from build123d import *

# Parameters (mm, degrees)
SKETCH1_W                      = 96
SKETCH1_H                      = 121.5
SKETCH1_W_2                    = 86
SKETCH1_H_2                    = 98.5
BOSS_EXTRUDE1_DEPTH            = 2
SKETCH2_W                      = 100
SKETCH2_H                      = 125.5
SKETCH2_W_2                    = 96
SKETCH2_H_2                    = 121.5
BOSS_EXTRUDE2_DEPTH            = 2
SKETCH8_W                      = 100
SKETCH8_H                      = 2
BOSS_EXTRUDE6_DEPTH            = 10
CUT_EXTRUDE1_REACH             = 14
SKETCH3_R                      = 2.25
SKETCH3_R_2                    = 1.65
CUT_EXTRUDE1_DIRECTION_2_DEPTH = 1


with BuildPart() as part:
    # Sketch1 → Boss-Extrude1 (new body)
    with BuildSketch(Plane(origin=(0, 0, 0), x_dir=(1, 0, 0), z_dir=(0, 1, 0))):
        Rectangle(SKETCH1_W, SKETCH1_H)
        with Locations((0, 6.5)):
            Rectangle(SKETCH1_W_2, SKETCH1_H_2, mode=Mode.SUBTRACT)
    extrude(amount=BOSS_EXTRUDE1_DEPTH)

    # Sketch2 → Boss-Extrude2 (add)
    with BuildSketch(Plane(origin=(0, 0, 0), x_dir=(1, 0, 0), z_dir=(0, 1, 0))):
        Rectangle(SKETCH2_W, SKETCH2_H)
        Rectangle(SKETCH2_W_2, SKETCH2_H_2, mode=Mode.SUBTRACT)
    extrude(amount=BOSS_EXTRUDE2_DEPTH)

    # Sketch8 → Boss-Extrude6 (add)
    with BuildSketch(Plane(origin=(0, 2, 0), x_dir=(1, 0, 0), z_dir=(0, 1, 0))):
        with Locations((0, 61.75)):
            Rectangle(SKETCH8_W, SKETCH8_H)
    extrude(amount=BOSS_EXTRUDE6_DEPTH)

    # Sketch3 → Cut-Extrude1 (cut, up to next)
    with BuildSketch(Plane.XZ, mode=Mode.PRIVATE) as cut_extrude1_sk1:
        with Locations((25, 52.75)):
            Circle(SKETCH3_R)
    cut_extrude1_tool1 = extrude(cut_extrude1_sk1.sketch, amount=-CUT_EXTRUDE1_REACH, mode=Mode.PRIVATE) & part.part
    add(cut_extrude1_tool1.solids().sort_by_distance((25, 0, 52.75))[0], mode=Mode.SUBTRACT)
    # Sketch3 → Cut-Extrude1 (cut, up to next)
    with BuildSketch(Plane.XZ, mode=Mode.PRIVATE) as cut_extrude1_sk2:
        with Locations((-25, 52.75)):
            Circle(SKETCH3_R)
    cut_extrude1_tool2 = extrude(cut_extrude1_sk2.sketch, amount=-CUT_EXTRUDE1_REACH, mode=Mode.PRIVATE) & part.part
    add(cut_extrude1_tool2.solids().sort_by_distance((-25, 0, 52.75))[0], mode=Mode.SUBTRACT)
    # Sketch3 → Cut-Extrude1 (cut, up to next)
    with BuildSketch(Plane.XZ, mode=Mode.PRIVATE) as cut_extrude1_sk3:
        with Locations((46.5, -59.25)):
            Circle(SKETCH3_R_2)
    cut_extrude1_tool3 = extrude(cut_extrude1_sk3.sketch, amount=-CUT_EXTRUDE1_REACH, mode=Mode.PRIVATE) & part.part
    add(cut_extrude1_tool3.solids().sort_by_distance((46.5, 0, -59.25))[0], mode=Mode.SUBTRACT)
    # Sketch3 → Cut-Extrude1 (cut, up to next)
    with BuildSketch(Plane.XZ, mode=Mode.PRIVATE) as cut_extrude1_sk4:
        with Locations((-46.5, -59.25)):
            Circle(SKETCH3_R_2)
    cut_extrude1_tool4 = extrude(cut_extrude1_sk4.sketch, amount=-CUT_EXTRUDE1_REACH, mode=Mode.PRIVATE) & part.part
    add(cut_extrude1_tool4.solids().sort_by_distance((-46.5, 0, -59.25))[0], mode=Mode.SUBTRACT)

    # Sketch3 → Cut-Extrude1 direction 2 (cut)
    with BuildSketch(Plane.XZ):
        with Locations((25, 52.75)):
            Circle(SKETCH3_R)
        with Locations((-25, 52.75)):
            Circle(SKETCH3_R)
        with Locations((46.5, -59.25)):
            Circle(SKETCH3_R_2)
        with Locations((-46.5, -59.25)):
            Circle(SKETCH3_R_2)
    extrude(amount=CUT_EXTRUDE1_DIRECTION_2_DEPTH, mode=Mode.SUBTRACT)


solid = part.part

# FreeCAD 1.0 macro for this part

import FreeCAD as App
import Part
import Sketcher

V = App.Vector

doc = App.newDocument("Part")
body = doc.addObject("PartDesign::Body", "Body")

sketch1 = body.newObject("Sketcher::SketchObject", "Sketch")
sketch1.AttachmentSupport = (doc.getObject("XZ_Plane"), [""])
sketch1.MapMode = "FlatFace"
sketch1.addGeometry(Part.LineSegment(V(-48, -61, 0), V(-48, 61, 0)), False)
sketch1.addGeometry(Part.LineSegment(V(-48, 61, 0), V(48, 61, 0)), False)
sketch1.addGeometry(Part.LineSegment(V(48, 61, 0), V(48, -61, 0)), False)
sketch1.addGeometry(Part.LineSegment(V(48, -61, 0), V(-48, -61, 0)), False)
sketch1.addGeometry(Part.LineSegment(V(43, 43, 0), V(-43, 43, 0)), False)
sketch1.addGeometry(Part.LineSegment(V(-43, 43, 0), V(-43, -56, 0)), False)
sketch1.addGeometry(Part.LineSegment(V(-43, -56, 0), V(43, -56, 0)), False)
sketch1.addGeometry(Part.LineSegment(V(43, -56, 0), V(43, 43, 0)), False)
sketch1.addConstraint(Sketcher.Constraint("Coincident", 0, 2, 1, 1))
sketch1.addConstraint(Sketcher.Constraint("Coincident", 1, 2, 2, 1))
sketch1.addConstraint(Sketcher.Constraint("Coincident", 2, 2, 3, 1))
sketch1.addConstraint(Sketcher.Constraint("Coincident", 3, 2, 0, 1))
sketch1.addConstraint(Sketcher.Constraint("Coincident", 4, 2, 5, 1))
sketch1.addConstraint(Sketcher.Constraint("Coincident", 5, 2, 6, 1))
sketch1.addConstraint(Sketcher.Constraint("Coincident", 6, 2, 7, 1))
sketch1.addConstraint(Sketcher.Constraint("Coincident", 7, 2, 4, 1))
sketch1.addConstraint(Sketcher.Constraint("Vertical", 0))
sketch1.addConstraint(Sketcher.Constraint("Horizontal", 1))
sketch1.addConstraint(Sketcher.Constraint("Vertical", 2))
sketch1.addConstraint(Sketcher.Constraint("Horizontal", 3))
sketch1.addConstraint(Sketcher.Constraint("Horizontal", 4))
sketch1.addConstraint(Sketcher.Constraint("Vertical", 5))
sketch1.addConstraint(Sketcher.Constraint("Horizontal", 6))
sketch1.addConstraint(Sketcher.Constraint("Vertical", 7))
sketch1.addConstraint(Sketcher.Constraint("Symmetric", 0, 2, 2, 2, -1, 1))
sketch1.addConstraint(Sketcher.Constraint("DistanceX", 1, 1, 1, 2, 96.0))
sketch1.addConstraint(Sketcher.Constraint("DistanceX", 4, 2, 4, 1, 86.0))
sketch1.addConstraint(Sketcher.Constraint("DistanceY", 0, 1, 0, 2, 121.5))
sketch1.addConstraint(Sketcher.Constraint("DistanceY", 5, 2, 5, 1, 98.5))
sketch1.addConstraint(Sketcher.Constraint("DistanceX", 4, 2, -1, 1, 43.0))
sketch1.addConstraint(Sketcher.Constraint("DistanceY", 4, 2, 0, 2, 18.0))
pad1 = body.newObject("PartDesign::Pad", "Pad")
pad1.Profile = sketch1
pad1.Length = 2
pad1.Reversed = True

sketch2 = body.newObject("Sketcher::SketchObject", "Sketch001")
sketch2.AttachmentSupport = (doc.getObject("XZ_Plane"), [""])
sketch2.MapMode = "FlatFace"
sketch2.addGeometry(Part.LineSegment(V(-50, -63, 0), V(-50, 63, 0)), False)
sketch2.addGeometry(Part.LineSegment(V(-50, 63, 0), V(50, 63, 0)), False)
sketch2.addGeometry(Part.LineSegment(V(50, 63, 0), V(50, -63, 0)), False)
sketch2.addGeometry(Part.LineSegment(V(50, -63, 0), V(-50, -63, 0)), False)
sketch2.addGeometry(Part.LineSegment(V(48, 61, 0), V(-48, 61, 0)), False)
sketch2.addGeometry(Part.LineSegment(V(-48, 61, 0), V(-48, -61, 0)), False)
sketch2.addGeometry(Part.LineSegment(V(-48, -61, 0), V(48, -61, 0)), False)
sketch2.addGeometry(Part.LineSegment(V(48, -61, 0), V(48, 61, 0)), False)
sketch2.addConstraint(Sketcher.Constraint("Coincident", 0, 2, 1, 1))
sketch2.addConstraint(Sketcher.Constraint("Coincident", 1, 2, 2, 1))
sketch2.addConstraint(Sketcher.Constraint("Coincident", 2, 2, 3, 1))
sketch2.addConstraint(Sketcher.Constraint("Coincident", 3, 2, 0, 1))
sketch2.addConstraint(Sketcher.Constraint("Coincident", 4, 2, 5, 1))
sketch2.addConstraint(Sketcher.Constraint("Coincident", 5, 2, 6, 1))
sketch2.addConstraint(Sketcher.Constraint("Coincident", 6, 2, 7, 1))
sketch2.addConstraint(Sketcher.Constraint("Coincident", 7, 2, 4, 1))
sketch2.addConstraint(Sketcher.Constraint("Vertical", 0))
sketch2.addConstraint(Sketcher.Constraint("Horizontal", 1))
sketch2.addConstraint(Sketcher.Constraint("Vertical", 2))
sketch2.addConstraint(Sketcher.Constraint("Horizontal", 3))
sketch2.addConstraint(Sketcher.Constraint("Horizontal", 4))
sketch2.addConstraint(Sketcher.Constraint("Vertical", 5))
sketch2.addConstraint(Sketcher.Constraint("Horizontal", 6))
sketch2.addConstraint(Sketcher.Constraint("Vertical", 7))
sketch2.addConstraint(Sketcher.Constraint("Symmetric", 0, 2, 2, 2, -1, 1))
sketch2.addConstraint(Sketcher.Constraint("Symmetric", 4, 2, 6, 2, -1, 1))
sketch2.addConstraint(Sketcher.Constraint("DistanceX", 1, 1, 1, 2, 100.0))
sketch2.addConstraint(Sketcher.Constraint("DistanceX", 4, 2, 4, 1, 96.0))
sketch2.addConstraint(Sketcher.Constraint("DistanceY", 0, 1, 0, 2, 125.5))
sketch2.addConstraint(Sketcher.Constraint("DistanceY", 5, 2, 5, 1, 121.5))
pad2 = body.newObject("PartDesign::Pad", "Pad001")
pad2.Profile = sketch2
pad2.Length = 2
pad2.Reversed = True

sketch3 = body.newObject("Sketcher::SketchObject", "Sketch002")
sketch3.AttachmentSupport = (doc.getObject("XZ_Plane"), [""])
sketch3.MapMode = "FlatFace"
sketch3.AttachmentOffset = App.Placement(V(0, 0, -2), App.Rotation())
sketch3.addGeometry(Part.LineSegment(V(-50, -62.8, 0), V(-50, -60.8, 0)), False)
sketch3.addGeometry(Part.LineSegment(V(-50, -60.8, 0), V(50, -60.8, 0)), False)
sketch3.addGeometry(Part.LineSegment(V(50, -60.8, 0), V(50, -62.8, 0)), False)
sketch3.addGeometry(Part.LineSegment(V(50, -62.8, 0), V(-50, -62.8, 0)), False)
sketch3.addConstraint(Sketcher.Constraint("Coincident", 0, 2, 1, 1))
sketch3.addConstraint(Sketcher.Constraint("Coincident", 1, 2, 2, 1))
sketch3.addConstraint(Sketcher.Constraint("Coincident", 2, 2, 3, 1))
sketch3.addConstraint(Sketcher.Constraint("Coincident", 3, 2, 0, 1))
sketch3.addConstraint(Sketcher.Constraint("Vertical", 0))
sketch3.addConstraint(Sketcher.Constraint("Horizontal", 1))
sketch3.addConstraint(Sketcher.Constraint("Vertical", 2))
sketch3.addConstraint(Sketcher.Constraint("Horizontal", 3))
sketch3.addConstraint(Sketcher.Constraint("DistanceX", 1, 1, 1, 2, 100.0))
sketch3.addConstraint(Sketcher.Constraint("DistanceY", 0, 1, 0, 2, 2.0))
sketch3.addConstraint(Sketcher.Constraint("DistanceX", 0, 2, -1, 1, 50.0))
sketch3.addConstraint(Sketcher.Constraint("DistanceY", 0, 2, -1, 1, 60.75))
pad3 = body.newObject("PartDesign::Pad", "Pad002")
pad3.Profile = sketch3
pad3.Length = 10
pad3.Reversed = True

sketch4 = body.newObject("Sketcher::SketchObject", "Sketch003")
sketch4.AttachmentSupport = (doc.getObject("XZ_Plane"), [""])
sketch4.MapMode = "FlatFace"
sketch4.addGeometry(Part.Circle(V(25, 52.8, 0), V(0, 0, 1), 2.2), False)
sketch4.addConstraint(Sketcher.Constraint("Diameter", 0, 4.5))
sketch4.addConstraint(Sketcher.Constraint("DistanceX", -1, 1, 0, 3, 25.0))
sketch4.addConstraint(Sketcher.Constraint("DistanceY", -1, 1, 0, 3, 52.75))
pocket1 = body.newObject("PartDesign::Pocket", "Pocket")
pocket1.Profile = sketch4
pocket1.Type = "UpToFirst"

sketch5 = body.newObject("Sketcher::SketchObject", "Sketch004")
sketch5.AttachmentSupport = (doc.getObject("XZ_Plane"), [""])
sketch5.MapMode = "FlatFace"
sketch5.addGeometry(Part.Circle(V(-25, 52.8, 0), V(0, 0, 1), 2.2), False)
sketch5.addConstraint(Sketcher.Constraint("Diameter", 0, 4.5))
sketch5.addConstraint(Sketcher.Constraint("DistanceX", 0, 3, -1, 1, 25.0))
sketch5.addConstraint(Sketcher.Constraint("DistanceY", -1, 1, 0, 3, 52.75))
pocket2 = body.newObject("PartDesign::Pocket", "Pocket001")
pocket2.Profile = sketch5
pocket2.Type = "UpToFirst"

sketch6 = body.newObject("Sketcher::SketchObject", "Sketch005")
sketch6.AttachmentSupport = (doc.getObject("XZ_Plane"), [""])
sketch6.MapMode = "FlatFace"
sketch6.addGeometry(Part.Circle(V(46.5, -59.2, 0), V(0, 0, 1), 1.6), False)
sketch6.addConstraint(Sketcher.Constraint("Diameter", 0, 3.3))
sketch6.addConstraint(Sketcher.Constraint("DistanceX", -1, 1, 0, 3, 46.5))
sketch6.addConstraint(Sketcher.Constraint("DistanceY", 0, 3, -1, 1, 59.25))
pocket3 = body.newObject("PartDesign::Pocket", "Pocket002")
pocket3.Profile = sketch6
pocket3.Length = 12

sketch7 = body.newObject("Sketcher::SketchObject", "Sketch006")
sketch7.AttachmentSupport = (doc.getObject("XZ_Plane"), [""])
sketch7.MapMode = "FlatFace"
sketch7.addGeometry(Part.Circle(V(-46.5, -59.2, 0), V(0, 0, 1), 1.6), False)
sketch7.addConstraint(Sketcher.Constraint("Diameter", 0, 3.3))
sketch7.addConstraint(Sketcher.Constraint("DistanceX", 0, 3, -1, 1, 46.5))
sketch7.addConstraint(Sketcher.Constraint("DistanceY", 0, 3, -1, 1, 59.25))
pocket4 = body.newObject("PartDesign::Pocket", "Pocket003")
pocket4.Profile = sketch7
pocket4.Length = 12

sketch8 = body.newObject("Sketcher::SketchObject", "Sketch007")
sketch8.AttachmentSupport = (doc.getObject("XZ_Plane"), [""])
sketch8.MapMode = "FlatFace"
sketch8.addGeometry(Part.Circle(V(25, 52.8, 0), V(0, 0, 1), 2.2), False)
sketch8.addGeometry(Part.Circle(V(-25, 52.8, 0), V(0, 0, 1), 2.2), False)
sketch8.addGeometry(Part.Circle(V(46.5, -59.2, 0), V(0, 0, 1), 1.6), False)
sketch8.addGeometry(Part.Circle(V(-46.5, -59.2, 0), V(0, 0, 1), 1.6), False)
sketch8.addConstraint(Sketcher.Constraint("Equal", 0, 1))
sketch8.addConstraint(Sketcher.Constraint("Equal", 2, 3))
sketch8.addConstraint(Sketcher.Constraint("Symmetric", 0, 3, 1, 3, -2))
sketch8.addConstraint(Sketcher.Constraint("Symmetric", 2, 3, 3, 3, -2))
sketch8.addConstraint(Sketcher.Constraint("Diameter", 0, 4.5))
sketch8.addConstraint(Sketcher.Constraint("Diameter", 2, 3.3))
sketch8.addConstraint(Sketcher.Constraint("DistanceX", -1, 1, 0, 3, 25.0))
sketch8.addConstraint(Sketcher.Constraint("DistanceY", 2, 3, 0, 3, 112.0))
sketch8.addConstraint(Sketcher.Constraint("DistanceX", 3, 3, 2, 3, 93.0))
sketch8.addConstraint(Sketcher.Constraint("DistanceY", -1, 1, 0, 3, 52.75))
pocket5 = body.newObject("PartDesign::Pocket", "Pocket004")
pocket5.Profile = sketch8
pocket5.Length = 1
pocket5.Reversed = True

doc.recompute()
